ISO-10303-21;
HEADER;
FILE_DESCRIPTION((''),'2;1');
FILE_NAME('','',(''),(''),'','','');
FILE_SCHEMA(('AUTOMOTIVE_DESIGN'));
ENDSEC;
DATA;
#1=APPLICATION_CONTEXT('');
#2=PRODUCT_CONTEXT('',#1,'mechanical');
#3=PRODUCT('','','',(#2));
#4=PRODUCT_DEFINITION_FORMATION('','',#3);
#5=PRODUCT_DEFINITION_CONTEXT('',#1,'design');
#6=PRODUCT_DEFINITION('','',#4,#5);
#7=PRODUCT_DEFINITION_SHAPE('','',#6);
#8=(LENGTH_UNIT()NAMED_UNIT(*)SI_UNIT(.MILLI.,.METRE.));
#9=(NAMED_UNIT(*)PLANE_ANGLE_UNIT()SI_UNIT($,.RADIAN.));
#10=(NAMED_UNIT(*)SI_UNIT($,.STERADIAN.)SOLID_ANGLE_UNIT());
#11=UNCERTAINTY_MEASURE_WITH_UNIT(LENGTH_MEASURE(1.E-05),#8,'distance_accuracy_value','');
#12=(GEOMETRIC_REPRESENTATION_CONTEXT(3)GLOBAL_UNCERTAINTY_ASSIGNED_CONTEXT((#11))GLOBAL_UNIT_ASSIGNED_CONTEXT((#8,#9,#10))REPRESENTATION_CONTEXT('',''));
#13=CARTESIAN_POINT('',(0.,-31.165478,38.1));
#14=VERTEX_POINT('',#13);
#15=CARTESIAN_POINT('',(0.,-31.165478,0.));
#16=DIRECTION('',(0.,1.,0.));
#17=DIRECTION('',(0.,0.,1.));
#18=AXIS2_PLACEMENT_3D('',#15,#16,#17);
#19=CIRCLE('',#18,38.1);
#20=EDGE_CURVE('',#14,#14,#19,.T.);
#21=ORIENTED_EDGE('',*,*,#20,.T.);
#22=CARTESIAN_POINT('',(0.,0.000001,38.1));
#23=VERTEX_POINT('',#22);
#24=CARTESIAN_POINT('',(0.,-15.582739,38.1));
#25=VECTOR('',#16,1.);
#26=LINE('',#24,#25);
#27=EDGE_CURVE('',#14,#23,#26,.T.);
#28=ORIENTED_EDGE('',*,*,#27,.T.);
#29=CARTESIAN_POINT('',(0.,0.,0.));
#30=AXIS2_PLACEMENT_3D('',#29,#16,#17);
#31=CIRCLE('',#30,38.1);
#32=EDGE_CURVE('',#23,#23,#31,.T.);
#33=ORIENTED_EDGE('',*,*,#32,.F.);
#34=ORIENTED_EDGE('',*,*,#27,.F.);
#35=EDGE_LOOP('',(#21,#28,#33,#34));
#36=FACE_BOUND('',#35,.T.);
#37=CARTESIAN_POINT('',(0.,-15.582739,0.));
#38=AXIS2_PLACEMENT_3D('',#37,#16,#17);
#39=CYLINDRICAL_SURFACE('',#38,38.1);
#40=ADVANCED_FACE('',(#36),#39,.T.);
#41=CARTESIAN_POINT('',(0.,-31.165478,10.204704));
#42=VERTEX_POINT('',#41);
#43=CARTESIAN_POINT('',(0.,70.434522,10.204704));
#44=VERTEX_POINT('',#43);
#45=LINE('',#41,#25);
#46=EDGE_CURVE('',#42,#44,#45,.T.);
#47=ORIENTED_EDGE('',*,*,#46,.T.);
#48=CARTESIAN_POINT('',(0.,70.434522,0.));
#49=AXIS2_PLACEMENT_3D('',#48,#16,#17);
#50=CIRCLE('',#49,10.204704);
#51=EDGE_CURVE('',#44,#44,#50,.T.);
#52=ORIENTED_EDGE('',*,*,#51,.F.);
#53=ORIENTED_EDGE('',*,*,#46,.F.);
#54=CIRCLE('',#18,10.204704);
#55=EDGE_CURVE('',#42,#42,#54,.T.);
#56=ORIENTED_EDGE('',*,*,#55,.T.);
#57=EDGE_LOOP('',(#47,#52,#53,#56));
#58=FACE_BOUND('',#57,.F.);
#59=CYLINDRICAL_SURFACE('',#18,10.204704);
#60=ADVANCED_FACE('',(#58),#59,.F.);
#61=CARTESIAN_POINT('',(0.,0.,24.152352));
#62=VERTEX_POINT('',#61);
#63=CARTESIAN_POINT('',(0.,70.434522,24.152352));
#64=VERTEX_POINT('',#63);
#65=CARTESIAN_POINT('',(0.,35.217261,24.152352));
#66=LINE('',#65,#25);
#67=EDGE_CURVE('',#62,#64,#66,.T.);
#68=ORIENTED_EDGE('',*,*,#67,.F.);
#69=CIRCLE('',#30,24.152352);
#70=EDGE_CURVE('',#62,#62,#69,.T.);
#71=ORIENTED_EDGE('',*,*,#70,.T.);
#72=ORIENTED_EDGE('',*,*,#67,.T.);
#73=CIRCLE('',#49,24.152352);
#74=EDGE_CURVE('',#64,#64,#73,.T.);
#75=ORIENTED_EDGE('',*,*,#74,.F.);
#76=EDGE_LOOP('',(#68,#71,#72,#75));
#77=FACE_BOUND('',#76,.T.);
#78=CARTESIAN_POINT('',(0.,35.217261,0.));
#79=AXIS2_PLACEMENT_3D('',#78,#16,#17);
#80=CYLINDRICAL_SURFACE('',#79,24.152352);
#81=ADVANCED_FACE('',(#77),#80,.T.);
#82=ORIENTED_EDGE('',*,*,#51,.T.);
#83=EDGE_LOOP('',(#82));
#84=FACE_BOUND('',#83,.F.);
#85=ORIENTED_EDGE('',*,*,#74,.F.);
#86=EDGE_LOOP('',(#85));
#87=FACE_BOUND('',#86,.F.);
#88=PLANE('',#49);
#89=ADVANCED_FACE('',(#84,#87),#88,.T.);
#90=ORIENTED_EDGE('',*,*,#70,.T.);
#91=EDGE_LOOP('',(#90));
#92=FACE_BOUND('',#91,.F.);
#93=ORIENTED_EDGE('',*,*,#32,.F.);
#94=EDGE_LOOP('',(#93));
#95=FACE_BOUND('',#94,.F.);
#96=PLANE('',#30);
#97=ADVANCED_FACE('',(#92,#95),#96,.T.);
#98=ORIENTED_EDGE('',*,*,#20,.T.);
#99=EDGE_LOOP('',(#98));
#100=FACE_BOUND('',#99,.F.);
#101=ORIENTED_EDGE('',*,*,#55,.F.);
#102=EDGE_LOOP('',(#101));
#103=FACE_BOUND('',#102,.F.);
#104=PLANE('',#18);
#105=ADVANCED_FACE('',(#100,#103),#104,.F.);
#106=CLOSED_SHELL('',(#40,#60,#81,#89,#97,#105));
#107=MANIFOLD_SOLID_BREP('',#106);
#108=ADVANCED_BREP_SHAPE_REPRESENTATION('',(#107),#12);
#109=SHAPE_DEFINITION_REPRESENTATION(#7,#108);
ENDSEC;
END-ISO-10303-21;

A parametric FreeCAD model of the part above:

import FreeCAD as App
import Part
import Sketcher

V = App.Vector
Q = App.Units.Quantity


def add_polygon(sketch, points):
    """Adds a closed chain of lines whose ends are joined by coincident constraints."""
    first, n = sketch.GeometryCount, len(points)
    for a, b in zip(points, points[1:] + points[:1]):
        sketch.addGeometry(Part.LineSegment(App.Vector(*a, 0), App.Vector(*b, 0)), False)
    for i in range(n):
        sketch.addConstraint(Sketcher.Constraint("Coincident", first + i, 2, first + (i + 1) % n, 1))

doc = App.newDocument("Part")
params = doc.addObject("Spreadsheet::Sheet", "Params")
for row, (alias, value) in enumerate([
    ("sketch1_width", "4 in"),
    ("revolution_angle", "360 deg"),
], start=1):
    params.set(f"A{row}", alias)
    params.set(f"B{row}", "=" + value)
    params.setAlias(f"B{row}", alias)

body = doc.addObject("PartDesign::Body", "Body")

# Sketch on YZ plane
sketch1 = body.newObject("Sketcher::SketchObject", "Sketch")
sketch1.AttachmentSupport = (doc.getObject("YZ_Plane"), [""])
sketch1.MapMode = "FlatFace"
add_polygon(sketch1, [(-31, 38), (-31, 10), (70, 10), (70, 24), (0, 24), (0, 38)])  # lines 0-5
sketch1.addConstraint([
    Sketcher.Constraint("Vertical", 0),
    Sketcher.Constraint("Horizontal", 1),
    Sketcher.Constraint("Vertical", 2),
    Sketcher.Constraint("Horizontal", 3),
    Sketcher.Constraint("Vertical", 4),
    Sketcher.Constraint("Horizontal", 5),
    Sketcher.Constraint("PointOnObject", 3, 2, -2),
    Sketcher.Constraint("Equal", 2, 4),
    Sketcher.Constraint("DistanceX", 1, 1, 1, 2, Q("4 in")),
    Sketcher.Constraint("DistanceY", -1, 1, 4, 2, Q("1.5 in")),
    Sketcher.Constraint("DistanceX", 3, 2, 3, 1, Q("70.434521 mm")),
    Sketcher.Constraint("DistanceY", 2, 1, 2, 2, Q("13.947648 mm")),
])
sketch1.setExpression("Constraints[14]", "Params.sketch1_width")
revolution = body.newObject("PartDesign::Revolution", "Revolution")
revolution.Profile = sketch1
revolution.ReferenceAxis = (sketch1, ["H_Axis"])
revolution.setExpression("Angle", "Params.revolution_angle")

doc.recompute()
